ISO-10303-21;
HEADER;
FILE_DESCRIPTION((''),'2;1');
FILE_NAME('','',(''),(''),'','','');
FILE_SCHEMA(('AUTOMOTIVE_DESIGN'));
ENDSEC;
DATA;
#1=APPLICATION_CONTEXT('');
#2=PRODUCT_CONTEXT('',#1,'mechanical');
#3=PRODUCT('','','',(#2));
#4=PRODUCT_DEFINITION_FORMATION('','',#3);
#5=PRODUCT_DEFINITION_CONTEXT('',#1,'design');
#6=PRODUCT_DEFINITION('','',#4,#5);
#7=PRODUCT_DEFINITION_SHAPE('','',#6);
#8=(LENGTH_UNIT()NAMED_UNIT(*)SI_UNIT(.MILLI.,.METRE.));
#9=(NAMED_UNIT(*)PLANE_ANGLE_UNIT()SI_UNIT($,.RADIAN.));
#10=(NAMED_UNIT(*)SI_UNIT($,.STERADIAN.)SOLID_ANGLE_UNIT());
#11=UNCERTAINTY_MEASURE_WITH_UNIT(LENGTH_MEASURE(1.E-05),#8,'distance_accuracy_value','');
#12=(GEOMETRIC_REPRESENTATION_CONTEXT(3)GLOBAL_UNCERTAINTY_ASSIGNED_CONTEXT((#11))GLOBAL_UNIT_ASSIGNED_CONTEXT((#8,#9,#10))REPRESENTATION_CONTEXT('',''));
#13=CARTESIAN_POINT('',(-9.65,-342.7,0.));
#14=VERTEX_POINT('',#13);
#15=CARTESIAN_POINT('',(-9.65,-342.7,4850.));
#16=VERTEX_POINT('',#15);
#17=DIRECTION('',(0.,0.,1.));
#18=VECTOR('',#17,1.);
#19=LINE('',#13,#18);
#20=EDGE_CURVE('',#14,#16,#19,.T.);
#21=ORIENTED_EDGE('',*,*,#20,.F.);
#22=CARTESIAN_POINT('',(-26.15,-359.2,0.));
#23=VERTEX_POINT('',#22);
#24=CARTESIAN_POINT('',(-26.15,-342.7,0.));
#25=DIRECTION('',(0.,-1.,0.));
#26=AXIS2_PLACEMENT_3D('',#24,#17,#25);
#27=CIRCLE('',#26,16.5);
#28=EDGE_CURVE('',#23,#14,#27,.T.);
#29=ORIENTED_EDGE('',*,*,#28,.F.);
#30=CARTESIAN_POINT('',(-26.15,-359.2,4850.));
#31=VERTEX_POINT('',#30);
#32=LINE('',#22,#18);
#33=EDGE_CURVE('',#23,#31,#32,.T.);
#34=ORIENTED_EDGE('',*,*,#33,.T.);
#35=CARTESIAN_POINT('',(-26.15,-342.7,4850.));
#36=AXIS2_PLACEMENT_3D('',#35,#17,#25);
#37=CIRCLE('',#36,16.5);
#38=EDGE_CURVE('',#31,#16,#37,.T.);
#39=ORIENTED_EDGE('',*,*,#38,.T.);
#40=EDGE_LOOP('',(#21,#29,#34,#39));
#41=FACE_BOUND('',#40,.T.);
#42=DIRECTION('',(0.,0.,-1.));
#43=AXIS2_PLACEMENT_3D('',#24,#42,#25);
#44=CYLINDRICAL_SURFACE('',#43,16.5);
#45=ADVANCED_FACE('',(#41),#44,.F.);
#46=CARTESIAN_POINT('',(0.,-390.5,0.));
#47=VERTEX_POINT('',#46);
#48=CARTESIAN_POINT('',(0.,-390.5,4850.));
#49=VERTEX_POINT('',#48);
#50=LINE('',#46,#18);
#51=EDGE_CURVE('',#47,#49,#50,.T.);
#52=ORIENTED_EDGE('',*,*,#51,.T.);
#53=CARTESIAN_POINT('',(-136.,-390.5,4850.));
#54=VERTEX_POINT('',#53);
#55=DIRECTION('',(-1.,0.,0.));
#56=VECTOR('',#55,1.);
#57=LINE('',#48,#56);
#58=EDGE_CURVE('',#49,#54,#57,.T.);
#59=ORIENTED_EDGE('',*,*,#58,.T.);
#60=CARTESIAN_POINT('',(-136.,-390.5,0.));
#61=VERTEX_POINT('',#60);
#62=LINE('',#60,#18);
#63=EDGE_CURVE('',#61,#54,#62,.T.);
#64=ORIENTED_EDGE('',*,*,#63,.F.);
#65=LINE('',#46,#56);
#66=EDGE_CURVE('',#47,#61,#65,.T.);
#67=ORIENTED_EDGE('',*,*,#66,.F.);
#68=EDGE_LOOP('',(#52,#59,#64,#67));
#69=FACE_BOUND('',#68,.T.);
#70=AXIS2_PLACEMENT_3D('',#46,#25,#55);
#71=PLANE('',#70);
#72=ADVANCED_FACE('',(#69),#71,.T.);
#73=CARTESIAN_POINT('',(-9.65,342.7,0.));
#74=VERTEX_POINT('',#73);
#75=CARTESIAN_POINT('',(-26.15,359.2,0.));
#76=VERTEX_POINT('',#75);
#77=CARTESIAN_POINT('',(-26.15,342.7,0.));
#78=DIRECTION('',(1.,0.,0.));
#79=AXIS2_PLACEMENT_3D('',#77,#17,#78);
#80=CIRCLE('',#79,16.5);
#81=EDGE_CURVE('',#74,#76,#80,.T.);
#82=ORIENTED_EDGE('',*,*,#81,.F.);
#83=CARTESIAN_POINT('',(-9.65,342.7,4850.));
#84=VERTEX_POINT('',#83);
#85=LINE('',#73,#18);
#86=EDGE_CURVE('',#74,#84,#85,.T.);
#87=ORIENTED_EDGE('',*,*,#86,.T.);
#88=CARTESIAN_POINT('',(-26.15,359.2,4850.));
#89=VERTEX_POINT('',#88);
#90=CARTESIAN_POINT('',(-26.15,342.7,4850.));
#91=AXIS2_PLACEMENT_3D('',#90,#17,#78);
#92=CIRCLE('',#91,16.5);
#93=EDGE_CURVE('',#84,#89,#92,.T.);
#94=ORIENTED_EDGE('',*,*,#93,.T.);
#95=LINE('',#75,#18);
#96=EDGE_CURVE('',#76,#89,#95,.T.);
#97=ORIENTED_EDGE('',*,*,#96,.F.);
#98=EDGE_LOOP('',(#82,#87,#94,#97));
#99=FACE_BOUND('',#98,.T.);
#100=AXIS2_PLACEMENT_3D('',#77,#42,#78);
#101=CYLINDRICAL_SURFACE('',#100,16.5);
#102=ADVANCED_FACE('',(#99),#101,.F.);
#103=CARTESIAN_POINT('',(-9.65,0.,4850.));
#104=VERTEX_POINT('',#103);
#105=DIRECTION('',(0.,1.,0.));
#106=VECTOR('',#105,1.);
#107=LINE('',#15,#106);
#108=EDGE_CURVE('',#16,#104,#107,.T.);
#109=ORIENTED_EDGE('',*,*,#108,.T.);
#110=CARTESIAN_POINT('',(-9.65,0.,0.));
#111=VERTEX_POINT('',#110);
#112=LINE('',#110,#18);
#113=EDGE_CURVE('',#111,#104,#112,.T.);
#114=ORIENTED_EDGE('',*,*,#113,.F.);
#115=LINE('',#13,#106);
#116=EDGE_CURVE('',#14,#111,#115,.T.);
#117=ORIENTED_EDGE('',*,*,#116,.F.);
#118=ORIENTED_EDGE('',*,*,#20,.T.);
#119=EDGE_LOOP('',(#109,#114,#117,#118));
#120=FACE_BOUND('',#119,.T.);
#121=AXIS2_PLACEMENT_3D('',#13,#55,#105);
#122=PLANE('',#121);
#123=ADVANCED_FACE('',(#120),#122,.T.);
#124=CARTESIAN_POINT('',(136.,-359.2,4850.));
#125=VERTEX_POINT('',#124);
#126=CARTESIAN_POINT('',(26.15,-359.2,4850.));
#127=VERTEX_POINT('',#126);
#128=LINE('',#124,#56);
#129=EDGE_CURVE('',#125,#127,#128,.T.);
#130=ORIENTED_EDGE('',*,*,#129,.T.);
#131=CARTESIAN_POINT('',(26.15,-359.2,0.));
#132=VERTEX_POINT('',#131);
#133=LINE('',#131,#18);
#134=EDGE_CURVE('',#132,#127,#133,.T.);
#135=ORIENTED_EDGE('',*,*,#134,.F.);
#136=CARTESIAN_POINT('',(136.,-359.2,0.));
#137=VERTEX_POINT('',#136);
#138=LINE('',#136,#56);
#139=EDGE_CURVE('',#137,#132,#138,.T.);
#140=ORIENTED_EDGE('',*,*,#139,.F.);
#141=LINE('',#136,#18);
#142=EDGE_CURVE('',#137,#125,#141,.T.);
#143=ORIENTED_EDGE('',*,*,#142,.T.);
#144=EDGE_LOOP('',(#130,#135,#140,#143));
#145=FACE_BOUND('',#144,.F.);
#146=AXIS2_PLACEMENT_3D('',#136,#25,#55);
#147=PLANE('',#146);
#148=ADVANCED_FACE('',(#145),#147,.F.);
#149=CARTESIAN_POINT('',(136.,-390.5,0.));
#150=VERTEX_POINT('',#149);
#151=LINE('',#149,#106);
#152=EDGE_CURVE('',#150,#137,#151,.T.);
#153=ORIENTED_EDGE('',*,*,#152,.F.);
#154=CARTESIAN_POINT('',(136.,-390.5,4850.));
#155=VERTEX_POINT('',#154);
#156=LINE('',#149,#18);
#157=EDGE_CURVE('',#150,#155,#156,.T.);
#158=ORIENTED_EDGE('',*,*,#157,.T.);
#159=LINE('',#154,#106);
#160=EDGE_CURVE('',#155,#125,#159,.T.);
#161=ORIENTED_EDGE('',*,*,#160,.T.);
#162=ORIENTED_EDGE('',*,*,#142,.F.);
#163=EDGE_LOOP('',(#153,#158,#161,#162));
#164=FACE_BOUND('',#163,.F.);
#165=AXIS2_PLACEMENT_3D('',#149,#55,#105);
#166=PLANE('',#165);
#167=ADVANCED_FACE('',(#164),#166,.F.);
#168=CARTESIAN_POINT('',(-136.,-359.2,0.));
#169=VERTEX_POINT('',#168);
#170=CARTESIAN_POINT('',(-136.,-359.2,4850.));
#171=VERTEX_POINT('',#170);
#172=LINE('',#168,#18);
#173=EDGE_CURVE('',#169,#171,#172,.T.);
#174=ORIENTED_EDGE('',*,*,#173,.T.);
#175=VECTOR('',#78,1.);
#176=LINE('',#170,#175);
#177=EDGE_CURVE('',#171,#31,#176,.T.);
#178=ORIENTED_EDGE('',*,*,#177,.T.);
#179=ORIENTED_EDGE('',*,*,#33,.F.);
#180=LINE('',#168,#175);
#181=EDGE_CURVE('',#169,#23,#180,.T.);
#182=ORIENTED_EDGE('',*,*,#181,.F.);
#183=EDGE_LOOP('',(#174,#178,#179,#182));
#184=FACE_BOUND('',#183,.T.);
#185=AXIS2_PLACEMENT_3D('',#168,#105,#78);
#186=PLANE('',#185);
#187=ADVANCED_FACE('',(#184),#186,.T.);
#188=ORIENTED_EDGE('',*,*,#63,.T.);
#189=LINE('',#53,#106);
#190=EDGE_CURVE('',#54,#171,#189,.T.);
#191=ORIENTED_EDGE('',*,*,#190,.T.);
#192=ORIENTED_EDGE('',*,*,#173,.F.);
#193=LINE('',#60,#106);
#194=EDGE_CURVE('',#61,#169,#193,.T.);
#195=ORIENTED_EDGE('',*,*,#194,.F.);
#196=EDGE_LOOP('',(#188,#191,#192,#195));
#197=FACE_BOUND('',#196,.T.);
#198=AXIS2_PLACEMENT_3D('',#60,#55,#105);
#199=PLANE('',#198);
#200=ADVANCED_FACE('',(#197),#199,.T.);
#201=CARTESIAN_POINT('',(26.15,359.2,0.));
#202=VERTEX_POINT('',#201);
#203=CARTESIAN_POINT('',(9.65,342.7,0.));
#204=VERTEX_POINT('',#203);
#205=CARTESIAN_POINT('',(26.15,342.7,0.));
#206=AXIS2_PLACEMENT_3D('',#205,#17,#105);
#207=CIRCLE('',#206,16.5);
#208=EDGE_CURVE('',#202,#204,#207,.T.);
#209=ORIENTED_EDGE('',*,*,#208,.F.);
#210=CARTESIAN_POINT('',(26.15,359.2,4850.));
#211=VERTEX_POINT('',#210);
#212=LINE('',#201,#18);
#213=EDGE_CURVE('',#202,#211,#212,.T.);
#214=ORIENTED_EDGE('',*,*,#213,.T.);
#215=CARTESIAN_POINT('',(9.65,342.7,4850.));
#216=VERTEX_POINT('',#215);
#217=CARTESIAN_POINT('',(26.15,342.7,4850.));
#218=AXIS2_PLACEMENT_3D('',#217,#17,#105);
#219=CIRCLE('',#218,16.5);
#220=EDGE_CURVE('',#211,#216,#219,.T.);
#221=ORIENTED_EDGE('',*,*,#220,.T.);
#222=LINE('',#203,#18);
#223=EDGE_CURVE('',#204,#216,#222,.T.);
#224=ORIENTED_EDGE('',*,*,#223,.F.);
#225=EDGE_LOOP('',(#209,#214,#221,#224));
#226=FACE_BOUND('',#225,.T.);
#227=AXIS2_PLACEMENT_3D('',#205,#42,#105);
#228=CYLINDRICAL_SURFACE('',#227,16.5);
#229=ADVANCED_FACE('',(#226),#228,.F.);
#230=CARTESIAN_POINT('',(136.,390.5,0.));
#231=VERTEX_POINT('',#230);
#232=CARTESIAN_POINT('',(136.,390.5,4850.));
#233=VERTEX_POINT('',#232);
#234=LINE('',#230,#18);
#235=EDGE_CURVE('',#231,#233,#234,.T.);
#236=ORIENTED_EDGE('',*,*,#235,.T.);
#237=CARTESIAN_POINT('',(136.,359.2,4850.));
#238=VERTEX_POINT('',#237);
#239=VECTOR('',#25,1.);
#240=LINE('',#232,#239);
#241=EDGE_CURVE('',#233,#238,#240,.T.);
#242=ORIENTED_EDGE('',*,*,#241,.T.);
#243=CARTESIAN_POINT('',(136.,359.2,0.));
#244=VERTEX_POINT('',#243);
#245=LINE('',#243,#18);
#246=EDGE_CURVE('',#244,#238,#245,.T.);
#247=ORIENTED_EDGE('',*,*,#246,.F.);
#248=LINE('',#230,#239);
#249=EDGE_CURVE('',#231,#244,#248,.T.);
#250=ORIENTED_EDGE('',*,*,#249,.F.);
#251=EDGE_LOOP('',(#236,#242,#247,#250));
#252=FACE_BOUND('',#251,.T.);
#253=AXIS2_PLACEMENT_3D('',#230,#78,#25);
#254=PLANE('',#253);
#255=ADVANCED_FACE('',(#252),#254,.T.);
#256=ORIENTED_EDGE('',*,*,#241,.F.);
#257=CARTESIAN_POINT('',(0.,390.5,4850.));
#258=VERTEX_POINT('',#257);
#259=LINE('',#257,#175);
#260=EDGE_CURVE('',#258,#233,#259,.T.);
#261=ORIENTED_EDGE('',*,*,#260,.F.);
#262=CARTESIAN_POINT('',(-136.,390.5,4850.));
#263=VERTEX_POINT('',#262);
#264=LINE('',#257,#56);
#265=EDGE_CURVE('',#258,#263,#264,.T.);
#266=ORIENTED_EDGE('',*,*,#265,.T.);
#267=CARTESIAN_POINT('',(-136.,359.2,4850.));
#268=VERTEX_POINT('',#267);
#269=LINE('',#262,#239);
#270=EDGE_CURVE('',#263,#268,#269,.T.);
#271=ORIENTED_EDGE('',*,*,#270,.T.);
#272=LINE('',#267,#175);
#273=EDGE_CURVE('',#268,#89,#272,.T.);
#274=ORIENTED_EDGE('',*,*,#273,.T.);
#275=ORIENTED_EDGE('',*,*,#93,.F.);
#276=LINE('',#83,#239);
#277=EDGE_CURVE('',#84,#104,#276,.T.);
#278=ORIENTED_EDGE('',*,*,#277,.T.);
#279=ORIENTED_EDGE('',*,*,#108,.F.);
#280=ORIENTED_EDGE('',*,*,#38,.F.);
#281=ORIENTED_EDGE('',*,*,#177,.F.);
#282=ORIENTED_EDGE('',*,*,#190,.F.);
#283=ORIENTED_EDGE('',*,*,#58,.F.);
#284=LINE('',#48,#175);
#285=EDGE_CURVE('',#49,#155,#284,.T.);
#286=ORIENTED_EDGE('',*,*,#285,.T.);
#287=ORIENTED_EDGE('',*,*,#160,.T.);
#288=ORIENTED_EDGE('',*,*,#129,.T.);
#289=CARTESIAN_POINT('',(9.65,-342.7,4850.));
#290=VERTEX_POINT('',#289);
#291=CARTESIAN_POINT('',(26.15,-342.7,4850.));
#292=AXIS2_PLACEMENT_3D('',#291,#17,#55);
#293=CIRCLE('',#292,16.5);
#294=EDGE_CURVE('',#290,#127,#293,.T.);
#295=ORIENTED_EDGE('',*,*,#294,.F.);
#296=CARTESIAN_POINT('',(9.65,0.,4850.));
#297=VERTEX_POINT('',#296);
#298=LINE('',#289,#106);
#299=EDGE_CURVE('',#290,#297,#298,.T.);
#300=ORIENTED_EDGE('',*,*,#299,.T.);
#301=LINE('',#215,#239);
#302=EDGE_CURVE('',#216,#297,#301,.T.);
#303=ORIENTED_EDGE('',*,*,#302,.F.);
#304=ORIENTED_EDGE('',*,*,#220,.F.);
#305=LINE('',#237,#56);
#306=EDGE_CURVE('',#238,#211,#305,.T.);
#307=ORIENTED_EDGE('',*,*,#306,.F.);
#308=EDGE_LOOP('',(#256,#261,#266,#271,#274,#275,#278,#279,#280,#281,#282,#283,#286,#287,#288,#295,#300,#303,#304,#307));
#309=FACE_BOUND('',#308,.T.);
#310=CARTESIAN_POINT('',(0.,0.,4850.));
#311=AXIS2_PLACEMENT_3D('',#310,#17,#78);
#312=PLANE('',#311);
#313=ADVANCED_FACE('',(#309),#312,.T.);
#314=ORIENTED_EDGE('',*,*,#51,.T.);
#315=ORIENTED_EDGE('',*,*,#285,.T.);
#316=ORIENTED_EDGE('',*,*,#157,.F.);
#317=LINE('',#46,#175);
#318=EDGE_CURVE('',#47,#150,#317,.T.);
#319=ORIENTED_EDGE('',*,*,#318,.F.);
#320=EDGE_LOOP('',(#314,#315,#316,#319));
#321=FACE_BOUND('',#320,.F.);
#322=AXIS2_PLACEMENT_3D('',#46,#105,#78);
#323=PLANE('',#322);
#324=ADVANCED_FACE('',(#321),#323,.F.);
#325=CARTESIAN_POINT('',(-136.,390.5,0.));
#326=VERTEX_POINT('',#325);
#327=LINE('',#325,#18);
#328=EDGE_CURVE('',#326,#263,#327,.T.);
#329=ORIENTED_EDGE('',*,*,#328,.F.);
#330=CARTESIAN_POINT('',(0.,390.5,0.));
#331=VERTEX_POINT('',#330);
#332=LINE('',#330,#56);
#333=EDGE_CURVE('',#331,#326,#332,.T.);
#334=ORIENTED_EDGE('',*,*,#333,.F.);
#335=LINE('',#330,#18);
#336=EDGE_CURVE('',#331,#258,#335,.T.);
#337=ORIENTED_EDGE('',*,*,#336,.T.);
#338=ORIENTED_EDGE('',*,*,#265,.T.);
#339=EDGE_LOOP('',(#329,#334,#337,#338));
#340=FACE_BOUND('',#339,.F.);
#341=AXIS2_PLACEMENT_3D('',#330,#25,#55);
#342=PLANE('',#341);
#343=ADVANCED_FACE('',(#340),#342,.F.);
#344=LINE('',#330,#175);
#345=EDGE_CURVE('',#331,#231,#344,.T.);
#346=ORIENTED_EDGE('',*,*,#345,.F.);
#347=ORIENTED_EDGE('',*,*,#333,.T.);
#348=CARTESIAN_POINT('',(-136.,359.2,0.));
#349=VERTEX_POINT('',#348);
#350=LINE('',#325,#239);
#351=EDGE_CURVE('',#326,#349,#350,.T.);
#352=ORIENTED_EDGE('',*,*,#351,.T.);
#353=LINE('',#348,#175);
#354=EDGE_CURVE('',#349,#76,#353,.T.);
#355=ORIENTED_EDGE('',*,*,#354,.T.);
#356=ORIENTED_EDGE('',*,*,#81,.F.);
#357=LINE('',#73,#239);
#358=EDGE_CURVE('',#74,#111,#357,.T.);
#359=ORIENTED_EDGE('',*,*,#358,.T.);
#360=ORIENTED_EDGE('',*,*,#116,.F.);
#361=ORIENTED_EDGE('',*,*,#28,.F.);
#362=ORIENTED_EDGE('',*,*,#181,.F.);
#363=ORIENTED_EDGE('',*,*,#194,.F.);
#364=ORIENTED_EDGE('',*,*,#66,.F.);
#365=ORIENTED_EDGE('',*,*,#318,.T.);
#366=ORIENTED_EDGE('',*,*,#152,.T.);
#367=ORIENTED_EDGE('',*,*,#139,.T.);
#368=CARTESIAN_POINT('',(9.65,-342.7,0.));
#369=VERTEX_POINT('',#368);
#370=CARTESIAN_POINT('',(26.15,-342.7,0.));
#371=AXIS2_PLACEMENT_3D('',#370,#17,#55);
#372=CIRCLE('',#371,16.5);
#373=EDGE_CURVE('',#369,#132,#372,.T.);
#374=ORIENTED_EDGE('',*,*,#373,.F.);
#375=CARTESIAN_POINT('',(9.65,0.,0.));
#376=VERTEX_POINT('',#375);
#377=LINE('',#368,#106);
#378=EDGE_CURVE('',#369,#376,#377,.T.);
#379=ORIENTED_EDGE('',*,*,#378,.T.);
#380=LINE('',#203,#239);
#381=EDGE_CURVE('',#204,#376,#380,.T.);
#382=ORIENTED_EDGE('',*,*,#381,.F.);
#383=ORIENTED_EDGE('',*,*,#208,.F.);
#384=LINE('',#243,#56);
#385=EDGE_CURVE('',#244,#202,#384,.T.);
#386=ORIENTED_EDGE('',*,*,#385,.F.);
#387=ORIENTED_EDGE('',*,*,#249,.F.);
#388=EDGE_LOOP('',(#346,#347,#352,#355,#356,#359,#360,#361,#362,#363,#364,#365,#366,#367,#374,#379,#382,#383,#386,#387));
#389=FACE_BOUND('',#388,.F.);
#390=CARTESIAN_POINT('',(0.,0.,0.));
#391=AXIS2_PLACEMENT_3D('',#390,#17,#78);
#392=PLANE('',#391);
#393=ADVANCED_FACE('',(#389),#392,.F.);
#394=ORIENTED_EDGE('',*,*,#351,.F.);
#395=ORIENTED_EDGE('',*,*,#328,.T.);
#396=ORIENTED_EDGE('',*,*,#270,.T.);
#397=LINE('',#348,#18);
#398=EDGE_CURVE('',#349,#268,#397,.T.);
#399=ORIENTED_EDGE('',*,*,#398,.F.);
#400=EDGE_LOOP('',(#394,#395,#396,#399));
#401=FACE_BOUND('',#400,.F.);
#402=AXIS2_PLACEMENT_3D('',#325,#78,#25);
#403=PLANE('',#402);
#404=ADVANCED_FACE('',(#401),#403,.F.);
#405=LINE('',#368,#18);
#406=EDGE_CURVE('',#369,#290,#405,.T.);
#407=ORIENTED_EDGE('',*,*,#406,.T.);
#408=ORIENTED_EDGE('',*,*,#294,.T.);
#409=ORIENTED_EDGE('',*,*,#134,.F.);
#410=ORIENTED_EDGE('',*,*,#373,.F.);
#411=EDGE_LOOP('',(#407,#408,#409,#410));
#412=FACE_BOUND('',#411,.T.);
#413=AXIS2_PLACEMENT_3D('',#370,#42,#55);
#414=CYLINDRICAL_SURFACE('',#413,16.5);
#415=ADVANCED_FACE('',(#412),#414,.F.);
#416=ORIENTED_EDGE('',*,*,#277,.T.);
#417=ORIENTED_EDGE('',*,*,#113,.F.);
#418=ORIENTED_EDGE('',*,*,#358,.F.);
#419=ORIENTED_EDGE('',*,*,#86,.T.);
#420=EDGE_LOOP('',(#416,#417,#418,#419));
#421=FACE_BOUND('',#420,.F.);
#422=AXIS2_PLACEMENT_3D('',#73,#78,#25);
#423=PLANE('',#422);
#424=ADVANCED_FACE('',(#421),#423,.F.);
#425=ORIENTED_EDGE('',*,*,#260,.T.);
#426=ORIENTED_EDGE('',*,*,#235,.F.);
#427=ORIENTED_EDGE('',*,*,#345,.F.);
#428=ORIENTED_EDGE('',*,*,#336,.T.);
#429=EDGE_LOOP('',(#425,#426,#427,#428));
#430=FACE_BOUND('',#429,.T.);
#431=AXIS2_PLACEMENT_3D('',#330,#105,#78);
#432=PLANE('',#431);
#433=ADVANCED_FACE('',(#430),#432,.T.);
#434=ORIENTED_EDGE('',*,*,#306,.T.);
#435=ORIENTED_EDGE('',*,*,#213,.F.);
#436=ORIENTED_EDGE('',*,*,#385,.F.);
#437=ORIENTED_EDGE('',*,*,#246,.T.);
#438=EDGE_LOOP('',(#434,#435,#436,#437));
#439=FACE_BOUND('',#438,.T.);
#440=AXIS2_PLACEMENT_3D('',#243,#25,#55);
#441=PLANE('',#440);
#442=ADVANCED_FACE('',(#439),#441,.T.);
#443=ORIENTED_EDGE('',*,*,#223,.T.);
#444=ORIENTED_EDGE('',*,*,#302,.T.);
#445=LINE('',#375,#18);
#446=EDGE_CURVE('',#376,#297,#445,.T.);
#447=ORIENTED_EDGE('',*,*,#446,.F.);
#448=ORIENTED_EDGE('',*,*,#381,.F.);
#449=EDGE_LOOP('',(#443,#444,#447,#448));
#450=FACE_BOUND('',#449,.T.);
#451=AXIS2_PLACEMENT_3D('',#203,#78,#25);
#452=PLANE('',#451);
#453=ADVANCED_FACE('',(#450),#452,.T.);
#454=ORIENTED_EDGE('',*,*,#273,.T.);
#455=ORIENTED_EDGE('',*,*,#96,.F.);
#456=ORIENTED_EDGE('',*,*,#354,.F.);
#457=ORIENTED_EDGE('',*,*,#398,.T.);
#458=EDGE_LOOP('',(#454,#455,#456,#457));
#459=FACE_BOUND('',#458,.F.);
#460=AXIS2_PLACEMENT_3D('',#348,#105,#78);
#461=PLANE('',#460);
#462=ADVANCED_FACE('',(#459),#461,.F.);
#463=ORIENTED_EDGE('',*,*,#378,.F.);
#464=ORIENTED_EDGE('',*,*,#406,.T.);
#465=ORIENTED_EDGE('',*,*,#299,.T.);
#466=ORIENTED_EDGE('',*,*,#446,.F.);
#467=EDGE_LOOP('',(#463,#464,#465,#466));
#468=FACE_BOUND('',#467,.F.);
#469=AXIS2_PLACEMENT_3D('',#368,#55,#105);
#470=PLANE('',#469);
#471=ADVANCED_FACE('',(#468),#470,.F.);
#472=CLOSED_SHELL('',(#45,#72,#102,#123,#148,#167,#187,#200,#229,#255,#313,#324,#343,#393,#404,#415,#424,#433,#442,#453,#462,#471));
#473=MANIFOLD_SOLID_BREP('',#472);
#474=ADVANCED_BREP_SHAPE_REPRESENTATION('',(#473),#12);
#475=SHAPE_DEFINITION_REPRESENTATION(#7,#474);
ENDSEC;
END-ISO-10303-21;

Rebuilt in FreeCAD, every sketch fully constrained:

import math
import FreeCAD as App
import Part
import Sketcher
from FreeCAD import Vector
Q = App.Units.Quantity

doc = App.newDocument("Part")
params = doc.addObject("Spreadsheet::Sheet", "Params")
for row, (alias, value) in enumerate([
    ("sketch1_radius", "16.5 mm"),
    ("sketch1_height", "31.3 mm"),
    ("pad1_length", "4850 mm"),
], start=1):
    params.set(f"A{row}", alias)
    params.set(f"B{row}", "=" + value)
    params.setAlias(f"B{row}", alias)

body = doc.addObject("PartDesign::Body", "Body")

# Sketch on XY plane
sketch1 = doc.addObject("Sketcher::SketchObject", "Sketch")
body.addObject(sketch1)
sketch1.AttachmentSupport = (doc.XY_Plane, [""])
sketch1.MapMode = "FlatFace"
sketch1.addGeometry([
    Part.LineSegment(Vector(-136, -359, 0), Vector(-136, -390, 0)),  # 0
    Part.LineSegment(Vector(-136, -390, 0), Vector(136, -390, 0)),  # 1
    Part.LineSegment(Vector(136, -390, 0), Vector(136, -359, 0)),  # 2
    Part.LineSegment(Vector(136, -359, 0), Vector(26, -359, 0)),  # 3
    Part.ArcOfCircle(Part.Circle(Vector(26, -343, 0), Vector(0, 0, 1), 16), math.radians(180), math.radians(270)),  # 4
    Part.LineSegment(Vector(10, -343, 0), Vector(10, 343, 0)),  # 5
    Part.ArcOfCircle(Part.Circle(Vector(26, 343, 0), Vector(0, 0, 1), 16), math.radians(90), math.radians(180)),  # 6
    Part.LineSegment(Vector(26, 359, 0), Vector(136, 359, 0)),  # 7
    Part.LineSegment(Vector(136, 359, 0), Vector(136, 390, 0)),  # 8
    Part.LineSegment(Vector(136, 390, 0), Vector(-136, 390, 0)),  # 9
    Part.LineSegment(Vector(-136, 390, 0), Vector(-136, 359, 0)),  # 10
    Part.LineSegment(Vector(-136, 359, 0), Vector(-26, 359, 0)),  # 11
    Part.ArcOfCircle(Part.Circle(Vector(-26, 343, 0), Vector(0, 0, 1), 16), math.radians(0), math.radians(90)),  # 12
    Part.LineSegment(Vector(-10, 343, 0), Vector(-10, -343, 0)),  # 13
    Part.ArcOfCircle(Part.Circle(Vector(-26, -343, 0), Vector(0, 0, 1), 16), math.radians(-90), math.radians(0)),  # 14
    Part.LineSegment(Vector(-26, -359, 0), Vector(-136, -359, 0)),  # 15
], False)
sketch1.addConstraint([
    Sketcher.Constraint("Coincident", 0, 2, 1, 1),
    Sketcher.Constraint("Coincident", 1, 2, 2, 1),
    Sketcher.Constraint("Coincident", 2, 2, 3, 1),
    Sketcher.Constraint("Tangent", 3, 2, 4, 2),
    Sketcher.Constraint("Tangent", 4, 1, 5, 1),
    Sketcher.Constraint("Tangent", 5, 2, 6, 2),
    Sketcher.Constraint("Tangent", 6, 1, 7, 1),
    Sketcher.Constraint("Coincident", 7, 2, 8, 1),
    Sketcher.Constraint("Coincident", 8, 2, 9, 1),
    Sketcher.Constraint("Coincident", 9, 2, 10, 1),
    Sketcher.Constraint("Coincident", 10, 2, 11, 1),
    Sketcher.Constraint("Tangent", 11, 2, 12, 2),
    Sketcher.Constraint("Tangent", 12, 1, 13, 1),
    Sketcher.Constraint("Tangent", 13, 2, 14, 2),
    Sketcher.Constraint("Tangent", 14, 1, 15, 1),
    Sketcher.Constraint("Coincident", 15, 2, 0, 1),
    Sketcher.Constraint("Vertical", 0),
    Sketcher.Constraint("Horizontal", 1),
    Sketcher.Constraint("Vertical", 2),
    Sketcher.Constraint("Horizontal", 3),
    Sketcher.Constraint("Vertical", 5),
    Sketcher.Constraint("Horizontal", 7),
    Sketcher.Constraint("Vertical", 8),
    Sketcher.Constraint("Horizontal", 9),
    Sketcher.Constraint("Vertical", 10),
    Sketcher.Constraint("Horizontal", 11),
    Sketcher.Constraint("Vertical", 13),
    Sketcher.Constraint("Horizontal", 15),
    Sketcher.Constraint("Equal", 4, 6),
    Sketcher.Constraint("Equal", 6, 12),
    Sketcher.Constraint("Equal", 12, 14),
    Sketcher.Constraint("Symmetric", 4, 3, 12, 3, -1, 1),
    Sketcher.Constraint("Symmetric", 0, 2, 8, 2, -1, 1),
    Sketcher.Constraint("Symmetric", 7, 2, 10, 2, -2),
    Sketcher.Constraint("Symmetric", 2, 2, 15, 2, -2),
    Sketcher.Constraint("Radius", 4, Q("16.5 mm")),
    Sketcher.Constraint("DistanceY", 0, 2, 0, 1, Q("31.3 mm")),
    Sketcher.Constraint("DistanceX", 0, 2, -1, 1, Q("136 mm")),
    Sketcher.Constraint("DistanceY", 0, 2, -1, 1, Q("390.5 mm")),
    Sketcher.Constraint("DistanceX", -1, 1, 4, 1, Q("9.65 mm")),
])
sketch1.setExpression("Constraints[35]", "Params.sketch1_radius")
sketch1.setExpression("Constraints[36]", "Params.sketch1_height")
pad1 = doc.addObject("PartDesign::Pad", "Pad")
body.addObject(pad1)
pad1.Profile = sketch1
pad1.setExpression("Length", "Params.pad1_length")

doc.recompute()
